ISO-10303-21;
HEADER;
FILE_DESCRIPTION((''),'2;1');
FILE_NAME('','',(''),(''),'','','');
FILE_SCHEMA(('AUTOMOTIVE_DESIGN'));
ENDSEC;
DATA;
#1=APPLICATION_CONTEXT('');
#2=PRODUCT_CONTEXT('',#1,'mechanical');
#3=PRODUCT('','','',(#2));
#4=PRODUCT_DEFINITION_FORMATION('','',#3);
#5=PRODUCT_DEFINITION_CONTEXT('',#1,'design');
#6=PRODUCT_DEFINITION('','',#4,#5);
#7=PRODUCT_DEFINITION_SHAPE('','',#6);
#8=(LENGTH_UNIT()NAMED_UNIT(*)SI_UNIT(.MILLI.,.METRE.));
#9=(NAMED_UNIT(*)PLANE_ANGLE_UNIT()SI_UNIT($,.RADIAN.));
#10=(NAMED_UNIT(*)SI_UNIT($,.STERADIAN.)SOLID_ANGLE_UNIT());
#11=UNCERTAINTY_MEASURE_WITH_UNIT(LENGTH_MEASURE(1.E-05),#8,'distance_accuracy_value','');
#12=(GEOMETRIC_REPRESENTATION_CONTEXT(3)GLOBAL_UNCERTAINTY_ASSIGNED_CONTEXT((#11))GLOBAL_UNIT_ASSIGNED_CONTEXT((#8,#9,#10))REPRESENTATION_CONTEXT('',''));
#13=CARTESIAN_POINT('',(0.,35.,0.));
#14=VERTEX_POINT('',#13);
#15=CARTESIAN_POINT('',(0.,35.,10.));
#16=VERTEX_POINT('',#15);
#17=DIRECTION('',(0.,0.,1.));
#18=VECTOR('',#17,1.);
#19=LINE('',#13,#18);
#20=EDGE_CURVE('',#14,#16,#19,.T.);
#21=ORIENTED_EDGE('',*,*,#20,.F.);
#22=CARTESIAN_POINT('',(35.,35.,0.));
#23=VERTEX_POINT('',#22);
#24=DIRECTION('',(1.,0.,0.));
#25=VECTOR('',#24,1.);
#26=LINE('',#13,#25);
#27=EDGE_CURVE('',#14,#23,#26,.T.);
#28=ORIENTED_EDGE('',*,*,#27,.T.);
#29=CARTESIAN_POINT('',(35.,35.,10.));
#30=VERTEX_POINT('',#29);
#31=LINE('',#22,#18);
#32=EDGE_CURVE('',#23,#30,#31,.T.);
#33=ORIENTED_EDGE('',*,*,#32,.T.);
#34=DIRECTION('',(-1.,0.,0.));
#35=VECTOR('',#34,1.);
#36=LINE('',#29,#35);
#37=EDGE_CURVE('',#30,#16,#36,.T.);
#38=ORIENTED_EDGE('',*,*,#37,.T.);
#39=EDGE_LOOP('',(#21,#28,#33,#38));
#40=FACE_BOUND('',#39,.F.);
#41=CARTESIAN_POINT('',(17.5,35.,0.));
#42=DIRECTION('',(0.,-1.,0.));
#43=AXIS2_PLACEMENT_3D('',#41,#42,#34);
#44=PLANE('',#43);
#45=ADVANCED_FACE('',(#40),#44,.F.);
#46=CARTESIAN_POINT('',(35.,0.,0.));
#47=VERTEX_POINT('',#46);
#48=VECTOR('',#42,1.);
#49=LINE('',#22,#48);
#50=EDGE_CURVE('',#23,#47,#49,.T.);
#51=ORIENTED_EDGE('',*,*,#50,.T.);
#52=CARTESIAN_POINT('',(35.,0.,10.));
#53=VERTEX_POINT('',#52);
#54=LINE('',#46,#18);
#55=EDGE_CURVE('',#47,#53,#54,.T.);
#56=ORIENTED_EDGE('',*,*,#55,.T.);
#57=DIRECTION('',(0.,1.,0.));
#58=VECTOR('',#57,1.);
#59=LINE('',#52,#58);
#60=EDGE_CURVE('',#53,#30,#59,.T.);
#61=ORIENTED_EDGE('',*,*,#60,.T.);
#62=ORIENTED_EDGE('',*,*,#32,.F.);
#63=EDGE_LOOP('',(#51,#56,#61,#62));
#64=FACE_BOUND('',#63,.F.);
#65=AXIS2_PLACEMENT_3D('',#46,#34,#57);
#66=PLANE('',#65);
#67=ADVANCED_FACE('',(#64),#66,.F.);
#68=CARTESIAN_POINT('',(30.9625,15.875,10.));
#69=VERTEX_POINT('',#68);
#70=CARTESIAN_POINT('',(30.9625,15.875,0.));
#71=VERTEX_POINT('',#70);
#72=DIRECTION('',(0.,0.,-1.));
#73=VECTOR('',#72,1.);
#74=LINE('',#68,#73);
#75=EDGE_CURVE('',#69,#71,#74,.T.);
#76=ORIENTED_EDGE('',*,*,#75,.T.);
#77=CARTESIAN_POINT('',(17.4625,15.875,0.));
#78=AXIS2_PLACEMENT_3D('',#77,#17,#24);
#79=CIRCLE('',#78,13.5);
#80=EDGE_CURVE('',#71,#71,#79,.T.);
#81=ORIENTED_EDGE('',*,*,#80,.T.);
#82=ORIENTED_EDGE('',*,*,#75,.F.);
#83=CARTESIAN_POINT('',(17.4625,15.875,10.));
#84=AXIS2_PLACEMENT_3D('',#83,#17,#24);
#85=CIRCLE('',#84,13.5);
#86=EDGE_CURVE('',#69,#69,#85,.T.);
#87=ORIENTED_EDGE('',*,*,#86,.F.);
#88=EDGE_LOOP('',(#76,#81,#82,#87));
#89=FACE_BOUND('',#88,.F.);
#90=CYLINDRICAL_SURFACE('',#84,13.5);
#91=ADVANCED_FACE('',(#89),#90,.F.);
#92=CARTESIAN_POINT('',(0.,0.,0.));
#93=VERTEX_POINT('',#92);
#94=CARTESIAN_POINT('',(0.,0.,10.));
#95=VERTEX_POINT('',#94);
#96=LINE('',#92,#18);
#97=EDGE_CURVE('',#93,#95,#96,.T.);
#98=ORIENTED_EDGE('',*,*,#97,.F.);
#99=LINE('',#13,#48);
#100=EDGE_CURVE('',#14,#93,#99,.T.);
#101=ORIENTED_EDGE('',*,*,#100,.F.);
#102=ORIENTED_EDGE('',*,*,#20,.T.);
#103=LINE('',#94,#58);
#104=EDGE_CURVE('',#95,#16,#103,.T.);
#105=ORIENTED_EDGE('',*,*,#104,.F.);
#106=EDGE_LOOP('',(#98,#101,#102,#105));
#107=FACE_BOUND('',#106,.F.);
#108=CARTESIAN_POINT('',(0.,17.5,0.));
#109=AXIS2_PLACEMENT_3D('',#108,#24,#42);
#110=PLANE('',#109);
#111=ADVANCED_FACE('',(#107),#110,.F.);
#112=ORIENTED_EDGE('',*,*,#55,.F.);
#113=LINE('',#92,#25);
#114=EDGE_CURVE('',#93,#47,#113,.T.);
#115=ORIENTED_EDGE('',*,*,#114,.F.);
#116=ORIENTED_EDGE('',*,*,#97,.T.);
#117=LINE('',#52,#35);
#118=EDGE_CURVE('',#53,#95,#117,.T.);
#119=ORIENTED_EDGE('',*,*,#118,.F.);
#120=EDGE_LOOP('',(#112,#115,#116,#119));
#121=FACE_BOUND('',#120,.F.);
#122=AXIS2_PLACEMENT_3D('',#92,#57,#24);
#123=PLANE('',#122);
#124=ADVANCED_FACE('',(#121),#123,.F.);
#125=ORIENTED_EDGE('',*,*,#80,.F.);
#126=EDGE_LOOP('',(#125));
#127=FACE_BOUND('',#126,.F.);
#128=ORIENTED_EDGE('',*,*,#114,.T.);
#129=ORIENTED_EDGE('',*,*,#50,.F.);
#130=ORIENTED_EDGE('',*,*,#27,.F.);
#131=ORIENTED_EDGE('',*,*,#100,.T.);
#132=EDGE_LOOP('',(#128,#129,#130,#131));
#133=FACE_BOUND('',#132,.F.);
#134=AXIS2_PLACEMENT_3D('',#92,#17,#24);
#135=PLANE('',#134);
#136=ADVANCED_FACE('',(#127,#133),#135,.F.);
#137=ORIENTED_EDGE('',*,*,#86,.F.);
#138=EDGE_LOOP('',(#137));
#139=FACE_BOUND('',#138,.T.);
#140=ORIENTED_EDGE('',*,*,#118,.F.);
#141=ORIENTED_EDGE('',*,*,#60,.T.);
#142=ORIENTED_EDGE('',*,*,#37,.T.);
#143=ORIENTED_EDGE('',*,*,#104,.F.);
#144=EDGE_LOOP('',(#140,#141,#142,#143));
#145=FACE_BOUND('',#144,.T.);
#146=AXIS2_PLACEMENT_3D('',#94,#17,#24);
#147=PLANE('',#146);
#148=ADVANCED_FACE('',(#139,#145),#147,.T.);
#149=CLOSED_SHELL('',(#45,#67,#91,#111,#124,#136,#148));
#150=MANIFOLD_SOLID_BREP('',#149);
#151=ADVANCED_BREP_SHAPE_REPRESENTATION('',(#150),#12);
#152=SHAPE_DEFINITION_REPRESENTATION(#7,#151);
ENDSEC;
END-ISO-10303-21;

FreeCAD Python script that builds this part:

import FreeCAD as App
import Part
import Sketcher
from FreeCAD import Vector
Q = App.Units.Quantity


def add_polygon(sketch, points):
    """Adds a closed chain of lines whose ends are joined by coincident constraints."""
    first, n = sketch.GeometryCount, len(points)
    for a, b in zip(points, points[1:] + points[:1]):
        sketch.addGeometry(Part.LineSegment(App.Vector(*a, 0), App.Vector(*b, 0)), False)
    for i in range(n):
        sketch.addConstraint(Sketcher.Constraint("Coincident", first + i, 2, first + (i + 1) % n, 1))

doc = App.newDocument("Part")
body = doc.addObject("PartDesign::Body", "Body")

sketch1 = body.newObject("Sketcher::SketchObject", "Sketch")
sketch1.AttachmentSupport = (doc.getObject("XY_Plane"), [""])
sketch1.MapMode = "FlatFace"
add_polygon(sketch1, [(0, 0), (35, 0), (35, 35), (0, 35)])
sketch1.addConstraint([
    Sketcher.Constraint("Horizontal", 0),
    Sketcher.Constraint("Vertical", 1),
    Sketcher.Constraint("Horizontal", 2),
    Sketcher.Constraint("Vertical", 3),
    Sketcher.Constraint("Coincident", 3, 2, -1, 1),
    Sketcher.Constraint("Equal", 2, 1),
    Sketcher.Constraint("DistanceX", 0, 1, 0, 2, Q("35 mm")),
])
pad1 = body.newObject("PartDesign::Pad", "Pad")
pad1.Profile = sketch1
pad1.Length = 10

sketch2 = body.newObject("Sketcher::SketchObject", "Sketch001")
sketch2.AttachmentSupport = (doc.getObject("XY_Plane"), [""])
sketch2.MapMode = "FlatFace"
sketch2.AttachmentOffset = App.Placement(Vector(0, 0, 10), App.Rotation())
sketch2.addGeometry(Part.Circle(Vector(17.4625, 15.875, 0), Vector(0, 0, 1), 13.5), False)
sketch2.addConstraint([
    Sketcher.Constraint("Diameter", 0, Q("27 mm")),
    Sketcher.Constraint("DistanceY", -1, 1, 0, 3, Q("15.875 mm")),
    Sketcher.Constraint("DistanceX", -1, 1, 0, 3, Q("17.4625 mm")),
])
pocket1 = body.newObject("PartDesign::Pocket", "Pocket")
pocket1.Profile = sketch2
pocket1.Type = "ThroughAll"

doc.recompute()
